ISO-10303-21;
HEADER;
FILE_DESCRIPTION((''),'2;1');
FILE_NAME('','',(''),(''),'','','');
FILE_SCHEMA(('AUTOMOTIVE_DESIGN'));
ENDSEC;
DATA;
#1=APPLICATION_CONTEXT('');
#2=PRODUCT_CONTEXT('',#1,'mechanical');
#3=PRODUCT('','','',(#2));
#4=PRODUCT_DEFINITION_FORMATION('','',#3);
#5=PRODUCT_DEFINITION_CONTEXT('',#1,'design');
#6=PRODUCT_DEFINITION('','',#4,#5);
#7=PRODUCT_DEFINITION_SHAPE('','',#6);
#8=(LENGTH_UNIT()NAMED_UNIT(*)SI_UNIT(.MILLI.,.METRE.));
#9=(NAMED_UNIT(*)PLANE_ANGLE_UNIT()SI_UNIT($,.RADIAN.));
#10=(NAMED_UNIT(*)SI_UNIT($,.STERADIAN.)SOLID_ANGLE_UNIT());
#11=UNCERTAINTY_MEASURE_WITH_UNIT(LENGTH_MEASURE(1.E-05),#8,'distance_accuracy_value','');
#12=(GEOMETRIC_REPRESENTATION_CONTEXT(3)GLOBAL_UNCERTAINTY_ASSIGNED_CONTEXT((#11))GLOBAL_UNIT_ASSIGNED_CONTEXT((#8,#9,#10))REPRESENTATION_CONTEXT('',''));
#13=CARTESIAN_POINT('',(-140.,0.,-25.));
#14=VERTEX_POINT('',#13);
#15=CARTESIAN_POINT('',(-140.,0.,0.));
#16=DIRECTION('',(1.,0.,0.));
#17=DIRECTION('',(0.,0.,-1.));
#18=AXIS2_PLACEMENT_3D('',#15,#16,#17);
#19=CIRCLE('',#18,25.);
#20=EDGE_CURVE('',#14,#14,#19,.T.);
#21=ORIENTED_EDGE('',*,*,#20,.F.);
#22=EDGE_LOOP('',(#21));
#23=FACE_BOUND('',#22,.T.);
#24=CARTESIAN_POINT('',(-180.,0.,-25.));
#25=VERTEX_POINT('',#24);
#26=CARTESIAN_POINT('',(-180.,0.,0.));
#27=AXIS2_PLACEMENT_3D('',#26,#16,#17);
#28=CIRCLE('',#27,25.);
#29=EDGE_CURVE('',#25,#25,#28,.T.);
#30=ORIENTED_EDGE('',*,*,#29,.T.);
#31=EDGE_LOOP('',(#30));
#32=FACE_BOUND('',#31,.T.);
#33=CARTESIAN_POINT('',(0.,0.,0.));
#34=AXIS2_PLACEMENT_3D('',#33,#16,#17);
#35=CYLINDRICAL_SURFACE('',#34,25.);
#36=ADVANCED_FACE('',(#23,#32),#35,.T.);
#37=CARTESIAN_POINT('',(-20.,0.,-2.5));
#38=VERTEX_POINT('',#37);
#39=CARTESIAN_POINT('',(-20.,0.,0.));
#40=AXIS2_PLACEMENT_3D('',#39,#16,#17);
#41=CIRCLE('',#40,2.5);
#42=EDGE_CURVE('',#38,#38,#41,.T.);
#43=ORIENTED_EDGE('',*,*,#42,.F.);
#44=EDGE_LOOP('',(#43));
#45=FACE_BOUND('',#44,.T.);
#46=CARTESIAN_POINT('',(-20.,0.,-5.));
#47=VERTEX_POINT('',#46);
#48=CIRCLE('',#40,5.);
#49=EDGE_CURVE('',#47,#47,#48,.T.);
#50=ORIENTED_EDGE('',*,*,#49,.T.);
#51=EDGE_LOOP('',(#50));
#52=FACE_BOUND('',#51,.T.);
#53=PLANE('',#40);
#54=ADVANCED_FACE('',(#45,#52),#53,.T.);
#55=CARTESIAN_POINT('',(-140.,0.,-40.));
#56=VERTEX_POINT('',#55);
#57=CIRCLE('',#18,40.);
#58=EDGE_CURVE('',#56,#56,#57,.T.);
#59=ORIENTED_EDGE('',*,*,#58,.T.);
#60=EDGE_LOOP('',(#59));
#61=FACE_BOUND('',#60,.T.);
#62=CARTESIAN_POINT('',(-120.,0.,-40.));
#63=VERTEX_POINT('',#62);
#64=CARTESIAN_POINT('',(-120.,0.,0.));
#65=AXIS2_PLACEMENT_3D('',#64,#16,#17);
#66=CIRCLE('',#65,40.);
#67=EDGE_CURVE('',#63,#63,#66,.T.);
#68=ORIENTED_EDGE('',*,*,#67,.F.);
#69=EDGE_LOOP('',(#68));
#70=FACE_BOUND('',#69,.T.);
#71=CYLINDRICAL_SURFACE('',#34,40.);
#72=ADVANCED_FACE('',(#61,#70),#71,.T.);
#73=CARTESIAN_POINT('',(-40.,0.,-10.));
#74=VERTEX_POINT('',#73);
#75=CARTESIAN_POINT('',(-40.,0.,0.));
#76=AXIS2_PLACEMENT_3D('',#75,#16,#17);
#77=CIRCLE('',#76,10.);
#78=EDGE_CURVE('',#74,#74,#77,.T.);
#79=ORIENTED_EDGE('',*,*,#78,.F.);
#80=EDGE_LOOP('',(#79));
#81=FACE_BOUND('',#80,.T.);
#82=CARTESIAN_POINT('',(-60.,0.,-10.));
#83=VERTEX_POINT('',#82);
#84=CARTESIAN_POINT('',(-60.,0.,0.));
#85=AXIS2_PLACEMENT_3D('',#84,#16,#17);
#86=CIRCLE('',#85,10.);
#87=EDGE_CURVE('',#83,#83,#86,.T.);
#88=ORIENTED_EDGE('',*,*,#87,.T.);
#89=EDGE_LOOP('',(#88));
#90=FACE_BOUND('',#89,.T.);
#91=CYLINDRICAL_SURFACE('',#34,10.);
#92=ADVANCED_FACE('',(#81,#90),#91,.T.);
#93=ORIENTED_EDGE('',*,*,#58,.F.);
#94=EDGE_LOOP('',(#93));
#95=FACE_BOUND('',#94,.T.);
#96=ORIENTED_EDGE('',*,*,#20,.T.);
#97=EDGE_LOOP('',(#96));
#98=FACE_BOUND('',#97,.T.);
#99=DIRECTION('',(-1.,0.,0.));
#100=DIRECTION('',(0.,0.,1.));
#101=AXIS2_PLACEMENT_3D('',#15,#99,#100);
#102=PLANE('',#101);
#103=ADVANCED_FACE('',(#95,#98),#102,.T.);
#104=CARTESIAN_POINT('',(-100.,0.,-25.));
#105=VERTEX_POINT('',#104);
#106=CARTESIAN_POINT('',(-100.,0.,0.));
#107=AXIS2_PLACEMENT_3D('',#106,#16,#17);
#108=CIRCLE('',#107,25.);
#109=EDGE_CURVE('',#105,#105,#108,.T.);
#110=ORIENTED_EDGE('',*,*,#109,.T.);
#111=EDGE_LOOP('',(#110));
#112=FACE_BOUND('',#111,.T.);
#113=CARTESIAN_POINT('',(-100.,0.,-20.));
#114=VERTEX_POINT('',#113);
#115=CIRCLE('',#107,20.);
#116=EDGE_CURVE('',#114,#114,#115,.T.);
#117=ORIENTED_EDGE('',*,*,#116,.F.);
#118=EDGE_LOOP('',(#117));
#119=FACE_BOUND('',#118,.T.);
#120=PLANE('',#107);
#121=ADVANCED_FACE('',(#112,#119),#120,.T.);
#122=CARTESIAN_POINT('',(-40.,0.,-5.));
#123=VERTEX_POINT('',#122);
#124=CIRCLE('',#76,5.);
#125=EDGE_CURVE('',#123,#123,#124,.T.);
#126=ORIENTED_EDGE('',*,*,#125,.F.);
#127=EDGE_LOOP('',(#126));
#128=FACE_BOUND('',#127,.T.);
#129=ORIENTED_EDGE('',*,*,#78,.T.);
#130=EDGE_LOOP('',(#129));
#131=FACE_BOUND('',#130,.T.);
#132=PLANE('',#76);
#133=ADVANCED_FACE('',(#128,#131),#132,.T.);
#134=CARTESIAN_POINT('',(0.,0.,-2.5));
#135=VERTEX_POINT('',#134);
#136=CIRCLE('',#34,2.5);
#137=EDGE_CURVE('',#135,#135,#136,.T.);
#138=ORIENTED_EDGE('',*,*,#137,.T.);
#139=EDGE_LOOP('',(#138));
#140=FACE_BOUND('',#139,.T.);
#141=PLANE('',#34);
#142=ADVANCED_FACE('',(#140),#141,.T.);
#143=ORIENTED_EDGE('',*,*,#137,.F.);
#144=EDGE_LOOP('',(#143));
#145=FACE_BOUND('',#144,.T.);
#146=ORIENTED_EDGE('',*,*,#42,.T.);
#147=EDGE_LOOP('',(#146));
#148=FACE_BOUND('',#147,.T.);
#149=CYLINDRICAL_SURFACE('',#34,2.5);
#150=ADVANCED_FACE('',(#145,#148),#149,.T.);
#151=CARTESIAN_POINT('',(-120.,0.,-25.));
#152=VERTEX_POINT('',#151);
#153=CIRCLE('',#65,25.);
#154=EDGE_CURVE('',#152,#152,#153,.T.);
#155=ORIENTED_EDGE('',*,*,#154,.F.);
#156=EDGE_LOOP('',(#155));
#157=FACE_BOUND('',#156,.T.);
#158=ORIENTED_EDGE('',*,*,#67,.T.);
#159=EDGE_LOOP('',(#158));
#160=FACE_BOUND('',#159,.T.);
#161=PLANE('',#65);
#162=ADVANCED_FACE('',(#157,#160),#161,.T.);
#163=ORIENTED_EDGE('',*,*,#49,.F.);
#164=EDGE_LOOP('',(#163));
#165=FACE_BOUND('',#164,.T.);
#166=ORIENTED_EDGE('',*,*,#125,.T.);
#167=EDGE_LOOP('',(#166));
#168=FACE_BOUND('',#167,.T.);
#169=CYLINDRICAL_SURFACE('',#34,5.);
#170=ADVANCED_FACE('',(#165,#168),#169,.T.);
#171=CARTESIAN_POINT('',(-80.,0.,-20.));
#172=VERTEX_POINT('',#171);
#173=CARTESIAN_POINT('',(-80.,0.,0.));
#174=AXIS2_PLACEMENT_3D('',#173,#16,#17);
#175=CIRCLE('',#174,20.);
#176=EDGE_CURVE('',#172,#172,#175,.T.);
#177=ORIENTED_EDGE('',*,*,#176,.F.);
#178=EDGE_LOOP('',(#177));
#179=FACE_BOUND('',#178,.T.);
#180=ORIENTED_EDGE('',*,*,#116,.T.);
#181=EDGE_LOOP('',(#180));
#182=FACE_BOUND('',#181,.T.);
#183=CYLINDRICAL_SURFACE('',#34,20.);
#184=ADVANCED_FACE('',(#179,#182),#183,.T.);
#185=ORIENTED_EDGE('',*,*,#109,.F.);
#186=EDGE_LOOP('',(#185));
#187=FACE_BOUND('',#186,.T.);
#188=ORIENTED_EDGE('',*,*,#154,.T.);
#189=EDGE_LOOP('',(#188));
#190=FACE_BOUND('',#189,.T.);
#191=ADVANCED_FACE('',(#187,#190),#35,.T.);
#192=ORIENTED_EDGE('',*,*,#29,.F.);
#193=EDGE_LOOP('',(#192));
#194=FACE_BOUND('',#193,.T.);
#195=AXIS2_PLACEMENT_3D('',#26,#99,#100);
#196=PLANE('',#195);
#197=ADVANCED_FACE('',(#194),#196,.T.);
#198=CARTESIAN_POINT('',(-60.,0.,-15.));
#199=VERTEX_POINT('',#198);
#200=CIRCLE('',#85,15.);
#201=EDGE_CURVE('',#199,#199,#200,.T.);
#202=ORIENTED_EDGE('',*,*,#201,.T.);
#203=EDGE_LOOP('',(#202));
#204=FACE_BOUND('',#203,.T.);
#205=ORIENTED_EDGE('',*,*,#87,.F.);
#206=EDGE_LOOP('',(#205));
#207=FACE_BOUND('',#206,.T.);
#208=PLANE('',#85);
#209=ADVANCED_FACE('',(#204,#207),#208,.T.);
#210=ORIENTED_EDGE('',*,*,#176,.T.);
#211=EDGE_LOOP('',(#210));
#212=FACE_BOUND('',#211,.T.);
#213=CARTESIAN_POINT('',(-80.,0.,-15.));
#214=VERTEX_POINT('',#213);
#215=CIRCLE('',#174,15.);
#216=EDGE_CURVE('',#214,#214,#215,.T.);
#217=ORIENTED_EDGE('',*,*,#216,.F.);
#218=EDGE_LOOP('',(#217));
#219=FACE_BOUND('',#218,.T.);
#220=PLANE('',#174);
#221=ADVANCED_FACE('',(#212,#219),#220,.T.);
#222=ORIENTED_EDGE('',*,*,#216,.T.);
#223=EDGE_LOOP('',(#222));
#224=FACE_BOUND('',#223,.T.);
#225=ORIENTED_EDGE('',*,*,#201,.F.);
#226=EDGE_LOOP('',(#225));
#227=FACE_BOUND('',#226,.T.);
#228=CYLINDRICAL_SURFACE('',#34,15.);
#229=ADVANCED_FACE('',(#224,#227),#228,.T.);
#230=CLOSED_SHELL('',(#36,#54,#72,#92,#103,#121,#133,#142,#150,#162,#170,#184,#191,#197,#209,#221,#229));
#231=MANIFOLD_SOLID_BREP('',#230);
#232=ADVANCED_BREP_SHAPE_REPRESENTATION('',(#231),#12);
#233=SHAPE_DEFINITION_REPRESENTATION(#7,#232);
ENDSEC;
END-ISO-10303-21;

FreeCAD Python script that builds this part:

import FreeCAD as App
import Part
import Sketcher
from FreeCAD import Vector
Q = App.Units.Quantity


def add_polygon(sketch, points):
    """Adds a closed chain of lines whose ends are joined by coincident constraints."""
    first, n = sketch.GeometryCount, len(points)
    for a, b in zip(points, points[1:] + points[:1]):
        sketch.addGeometry(Part.LineSegment(App.Vector(*a, 0), App.Vector(*b, 0)), False)
    for i in range(n):
        sketch.addConstraint(Sketcher.Constraint("Coincident", first + i, 2, first + (i + 1) % n, 1))

doc = App.newDocument("Part")
params = doc.addObject("Spreadsheet::Sheet", "Params")
for row, (alias, value) in enumerate([
    ("sketch1_width", "180 mm"),
    ("sketch1_width2", "20 mm"),
    ("sketch1_height", "5 mm"),
    ("sketch1_height2", "15 mm"),
    ("sketch1_height3", "25 mm"),
    ("revolution_angle", "360 deg"),
], start=1):
    params.set(f"A{row}", alias)
    params.set(f"B{row}", "=" + value)
    params.setAlias(f"B{row}", alias)

body = doc.addObject("PartDesign::Body", "Body")

# Sketch on XY plane
sketch1 = doc.addObject("Sketcher::SketchObject", "Sketch")
body.addObject(sketch1)
sketch1.AttachmentSupport = (doc.XY_Plane, [""])
sketch1.MapMode = "FlatFace"
add_polygon(sketch1, [(-180, 0), (0, 0), (0, 2.5), (-20, 2.5), (-20, 5), (-40, 5), (-40, 10), (-60, 10), (-60, 15), (-80, 15), (-80, 20), (-100, 20), (-100, 25), (-120, 25), (-120, 40), (-140, 40), (-140, 25), (-180, 25)])  # lines 0-17
sketch1.addConstraint(Sketcher.Constraint("Horizontal", 0))
sketch1.addConstraint(Sketcher.Constraint("Vertical", 1))
sketch1.addConstraint(Sketcher.Constraint("Horizontal", 2))
sketch1.addConstraint(Sketcher.Constraint("Vertical", 3))
sketch1.addConstraint(Sketcher.Constraint("Horizontal", 4))
sketch1.addConstraint(Sketcher.Constraint("Vertical", 5))
sketch1.addConstraint(Sketcher.Constraint("Horizontal", 6))
sketch1.addConstraint(Sketcher.Constraint("Vertical", 7))
sketch1.addConstraint(Sketcher.Constraint("Horizontal", 8))
sketch1.addConstraint(Sketcher.Constraint("Vertical", 9))
sketch1.addConstraint(Sketcher.Constraint("Horizontal", 10))
sketch1.addConstraint(Sketcher.Constraint("Vertical", 11))
sketch1.addConstraint(Sketcher.Constraint("Horizontal", 12))
sketch1.addConstraint(Sketcher.Constraint("Vertical", 13))
sketch1.addConstraint(Sketcher.Constraint("Horizontal", 14))
sketch1.addConstraint(Sketcher.Constraint("Vertical", 15))
sketch1.addConstraint(Sketcher.Constraint("Horizontal", 16))
sketch1.addConstraint(Sketcher.Constraint("Vertical", 17))
sketch1.addConstraint(Sketcher.Constraint("Coincident", 0, 2, -1, 1))
sketch1.addConstraint(Sketcher.Constraint("Horizontal", 12, 2, 15, 2))
sketch1.addConstraint(Sketcher.Constraint("Equal", 2, 4))
sketch1.addConstraint(Sketcher.Constraint("Equal", 4, 6))
sketch1.addConstraint(Sketcher.Constraint("Equal", 6, 8))
sketch1.addConstraint(Sketcher.Constraint("Equal", 8, 10))
sketch1.addConstraint(Sketcher.Constraint("Equal", 10, 12))
sketch1.addConstraint(Sketcher.Constraint("Equal", 12, 14))
sketch1.addConstraint(Sketcher.Constraint("Equal", 1, 3))
sketch1.addConstraint(Sketcher.Constraint("Equal", 5, 7))
sketch1.addConstraint(Sketcher.Constraint("Equal", 7, 9))
sketch1.addConstraint(Sketcher.Constraint("Equal", 9, 11))
sketch1.addConstraint(Sketcher.Constraint("DistanceX", 0, 1, 0, 2, Q("180 mm")))
sketch1.addConstraint(Sketcher.Constraint("DistanceX", 2, 2, 2, 1, Q("20 mm")))
sketch1.addConstraint(Sketcher.Constraint("DistanceY", 5, 1, 5, 2, Q("5 mm")))
sketch1.addConstraint(Sketcher.Constraint("DistanceY", 13, 1, 13, 2, Q("15 mm")))
sketch1.addConstraint(Sketcher.Constraint("DistanceY", 17, 2, 17, 1, Q("25 mm")))
sketch1.setExpression("Constraints[48]", "Params.sketch1_width")
sketch1.setExpression("Constraints[49]", "Params.sketch1_width2")
sketch1.setExpression("Constraints[50]", "Params.sketch1_height")
sketch1.setExpression("Constraints[51]", "Params.sketch1_height2")
sketch1.setExpression("Constraints[52]", "Params.sketch1_height3")
revolution = doc.addObject("PartDesign::Revolution", "Revolution")
body.addObject(revolution)
revolution.Profile = sketch1
revolution.ReferenceAxis = (sketch1, ["H_Axis"])
revolution.setExpression("Angle", "Params.revolution_angle")

doc.recompute()
